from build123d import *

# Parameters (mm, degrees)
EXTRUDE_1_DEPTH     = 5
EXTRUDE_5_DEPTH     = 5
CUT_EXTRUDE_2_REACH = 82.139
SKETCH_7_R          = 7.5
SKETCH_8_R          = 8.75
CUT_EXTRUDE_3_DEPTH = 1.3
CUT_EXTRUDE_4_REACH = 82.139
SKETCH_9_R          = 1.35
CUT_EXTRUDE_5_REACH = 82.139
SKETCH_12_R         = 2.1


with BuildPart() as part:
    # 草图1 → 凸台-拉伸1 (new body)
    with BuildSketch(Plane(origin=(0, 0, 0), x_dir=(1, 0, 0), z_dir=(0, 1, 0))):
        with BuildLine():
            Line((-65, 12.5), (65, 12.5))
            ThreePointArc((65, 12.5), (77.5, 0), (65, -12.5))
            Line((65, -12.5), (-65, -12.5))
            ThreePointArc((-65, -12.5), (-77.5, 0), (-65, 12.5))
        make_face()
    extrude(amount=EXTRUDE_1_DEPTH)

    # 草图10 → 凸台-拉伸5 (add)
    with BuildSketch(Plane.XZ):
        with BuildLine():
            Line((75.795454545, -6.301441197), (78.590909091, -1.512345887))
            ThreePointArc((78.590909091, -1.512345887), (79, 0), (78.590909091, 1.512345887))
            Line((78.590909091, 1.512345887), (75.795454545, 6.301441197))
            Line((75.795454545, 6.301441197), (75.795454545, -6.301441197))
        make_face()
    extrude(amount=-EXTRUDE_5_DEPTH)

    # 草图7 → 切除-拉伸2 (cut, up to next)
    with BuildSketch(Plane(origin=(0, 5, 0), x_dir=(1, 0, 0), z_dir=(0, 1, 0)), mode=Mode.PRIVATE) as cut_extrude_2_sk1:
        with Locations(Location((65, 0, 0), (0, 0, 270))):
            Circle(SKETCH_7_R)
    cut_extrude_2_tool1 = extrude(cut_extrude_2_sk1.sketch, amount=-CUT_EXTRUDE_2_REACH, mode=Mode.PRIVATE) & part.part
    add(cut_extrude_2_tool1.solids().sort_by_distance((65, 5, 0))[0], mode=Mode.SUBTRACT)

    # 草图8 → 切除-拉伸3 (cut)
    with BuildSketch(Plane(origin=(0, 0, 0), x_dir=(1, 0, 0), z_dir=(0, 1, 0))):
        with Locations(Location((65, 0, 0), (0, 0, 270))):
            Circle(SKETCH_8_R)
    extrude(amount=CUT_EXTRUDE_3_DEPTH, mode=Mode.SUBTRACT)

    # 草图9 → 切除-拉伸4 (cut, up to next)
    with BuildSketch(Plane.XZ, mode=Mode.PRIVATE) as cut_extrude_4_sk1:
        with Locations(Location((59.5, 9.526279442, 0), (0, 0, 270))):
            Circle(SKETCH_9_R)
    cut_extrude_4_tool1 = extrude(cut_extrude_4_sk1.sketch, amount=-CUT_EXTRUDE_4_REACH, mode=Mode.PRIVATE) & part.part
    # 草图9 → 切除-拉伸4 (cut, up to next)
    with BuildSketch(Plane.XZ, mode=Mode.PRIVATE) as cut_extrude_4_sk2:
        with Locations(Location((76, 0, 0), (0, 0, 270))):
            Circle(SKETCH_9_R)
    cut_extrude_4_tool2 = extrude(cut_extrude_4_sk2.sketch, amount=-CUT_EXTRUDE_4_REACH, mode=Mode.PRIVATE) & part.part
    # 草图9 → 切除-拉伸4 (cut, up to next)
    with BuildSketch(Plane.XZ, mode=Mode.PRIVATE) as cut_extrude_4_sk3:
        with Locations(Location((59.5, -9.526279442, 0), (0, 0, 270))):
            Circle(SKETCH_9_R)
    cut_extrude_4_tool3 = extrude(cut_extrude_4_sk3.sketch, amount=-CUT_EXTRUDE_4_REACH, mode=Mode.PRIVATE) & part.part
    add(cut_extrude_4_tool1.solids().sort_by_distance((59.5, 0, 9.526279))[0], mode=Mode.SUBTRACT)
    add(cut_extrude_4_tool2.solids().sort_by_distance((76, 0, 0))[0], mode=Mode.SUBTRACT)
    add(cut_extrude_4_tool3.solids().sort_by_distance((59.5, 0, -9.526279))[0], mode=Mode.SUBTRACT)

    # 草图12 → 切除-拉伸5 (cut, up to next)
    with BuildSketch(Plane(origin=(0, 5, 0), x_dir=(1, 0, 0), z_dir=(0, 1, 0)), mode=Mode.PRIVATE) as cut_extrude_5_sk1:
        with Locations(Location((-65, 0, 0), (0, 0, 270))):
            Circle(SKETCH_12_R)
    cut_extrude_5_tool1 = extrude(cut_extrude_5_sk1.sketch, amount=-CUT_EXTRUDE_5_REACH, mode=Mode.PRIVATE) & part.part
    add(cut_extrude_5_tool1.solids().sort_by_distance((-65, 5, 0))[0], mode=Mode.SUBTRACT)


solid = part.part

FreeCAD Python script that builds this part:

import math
import FreeCAD as App
import Part
import Sketcher
from FreeCAD import Vector
Q = App.Units.Quantity

doc = App.newDocument("Part")
body = doc.addObject("PartDesign::Body", "Body")

sketch1 = body.newObject("Sketcher::SketchObject", "Sketch")
sketch1.AttachmentSupport = (doc.getObject("XZ_Plane"), [""])
sketch1.MapMode = "FlatFace"
sketch1.addGeometry([
    Part.LineSegment(Vector(65, -12, 0), Vector(-65, -12, 0)),
    Part.ArcOfCircle(Part.Circle(Vector(-65, 0, 0), Vector(0, 0, 1), 12), math.radians(90), math.radians(270)),
    Part.LineSegment(Vector(-65, 12, 0), Vector(65, 12, 0)),
    Part.ArcOfCircle(Part.Circle(Vector(65, 0, 0), Vector(0, 0, 1), 12), math.radians(-90), math.radians(90)),
], False)
sketch1.addConstraint([
    Sketcher.Constraint("Tangent", 0, 2, 1, 2),
    Sketcher.Constraint("Tangent", 1, 1, 2, 1),
    Sketcher.Constraint("Tangent", 2, 2, 3, 2),
    Sketcher.Constraint("Tangent", 3, 1, 0, 1),
    Sketcher.Constraint("Horizontal", 0),
    Sketcher.Constraint("Horizontal", 2),
    Sketcher.Constraint("Symmetric", 1, 3, 3, 3, -1, 1),
    Sketcher.Constraint("Radius", 1, Q("12.5 mm")),
    Sketcher.Constraint("DistanceX", 0, 2, 0, 1, Q("130 mm")),
])
pad1 = body.newObject("PartDesign::Pad", "Pad")
pad1.Profile = sketch1
pad1.Length = 5
pad1.Reversed = True

sketch2 = body.newObject("Sketcher::SketchObject", "Sketch001")
sketch2.AttachmentSupport = (doc.getObject("XZ_Plane"), [""])
sketch2.MapMode = "FlatFace"
sketch2.addGeometry([
    Part.LineSegment(Vector(75.8, -6.3, 0), Vector(78.6, -1.5, 0)),
    Part.ArcOfCircle(Part.Circle(Vector(76, 0, 0), Vector(0, 0, 1), 3), math.radians(-30), math.radians(30)),
    Part.LineSegment(Vector(78.6, 1.5, 0), Vector(75.8, 6.3, 0)),
    Part.LineSegment(Vector(75.8, 6.3, 0), Vector(75.8, -6.3, 0)),
], False)
sketch2.addConstraint([
    Sketcher.Constraint("Tangent", 0, 2, 1, 1),
    Sketcher.Constraint("Tangent", 1, 2, 2, 1),
    Sketcher.Constraint("Coincident", 2, 2, 3, 1),
    Sketcher.Constraint("Coincident", 3, 2, 0, 1),
    Sketcher.Constraint("Vertical", 3),
    Sketcher.Constraint("Symmetric", 0, 2, 1, 2, -1),
    Sketcher.Constraint("Radius", 1, Q("3 mm")),
    Sketcher.Constraint("DistanceX", -1, 1, 1, 3, Q("76 mm")),
    Sketcher.Constraint("Distance", 0, Q("5.545268 mm")),
    Sketcher.Constraint("DistanceY", 3, 2, 3, 1, Q("12.602882 mm")),
])
pad2 = body.newObject("PartDesign::Pad", "Pad001")
pad2.Profile = sketch2
pad2.Length = 5
pad2.Reversed = True

sketch3 = body.newObject("Sketcher::SketchObject", "Sketch002")
sketch3.AttachmentSupport = (doc.getObject("XZ_Plane"), [""])
sketch3.MapMode = "FlatFace"
sketch3.AttachmentOffset = App.Placement(Vector(0, 0, -5), App.Rotation())
sketch3.addGeometry(Part.Circle(Vector(65, 0, 0), Vector(0, 0, 1), 8), False)
sketch3.addConstraint([
    Sketcher.Constraint("PointOnObject", 0, 3, -1),
    Sketcher.Constraint("Diameter", 0, Q("15 mm")),
    Sketcher.Constraint("DistanceX", -1, 1, 0, 3, Q("65 mm")),
])
pocket1 = body.newObject("PartDesign::Pocket", "Pocket")
pocket1.Profile = sketch3
pocket1.Type = "UpToFirst"
pocket1.Reversed = True

sketch4 = body.newObject("Sketcher::SketchObject", "Sketch003")
sketch4.AttachmentSupport = (doc.getObject("XZ_Plane"), [""])
sketch4.MapMode = "FlatFace"
sketch4.addGeometry(Part.Circle(Vector(65, 0, 0), Vector(0, 0, 1), 9), False)
sketch4.addConstraint([
    Sketcher.Constraint("PointOnObject", 0, 3, -1),
    Sketcher.Constraint("Diameter", 0, Q("17.5 mm")),
    Sketcher.Constraint("DistanceX", -1, 1, 0, 3, Q("65 mm")),
])
pocket2 = body.newObject("PartDesign::Pocket", "Pocket001")
pocket2.Profile = sketch4
pocket2.Length = 1.3

sketch5 = body.newObject("Sketcher::SketchObject", "Sketch004")
sketch5.AttachmentSupport = (doc.getObject("XZ_Plane"), [""])
sketch5.MapMode = "FlatFace"
sketch5.addGeometry(Part.Circle(Vector(59.5, 9.5, 0), Vector(0, 0, 1), 1.4), False)
sketch5.addConstraint([
    Sketcher.Constraint("Diameter", 0, Q("2.7 mm")),
    Sketcher.Constraint("DistanceX", -1, 1, 0, 3, Q("59.5 mm")),
    Sketcher.Constraint("DistanceY", -1, 1, 0, 3, Q("9.526279 mm")),
])
pocket3 = body.newObject("PartDesign::Pocket", "Pocket002")
pocket3.Profile = sketch5
pocket3.Type = "UpToFirst"

sketch6 = body.newObject("Sketcher::SketchObject", "Sketch005")
sketch6.AttachmentSupport = (doc.getObject("XZ_Plane"), [""])
sketch6.MapMode = "FlatFace"
sketch6.addGeometry(Part.Circle(Vector(76, 0, 0), Vector(0, 0, 1), 1.4), False)
sketch6.addConstraint([
    Sketcher.Constraint("PointOnObject", 0, 3, -1),
    Sketcher.Constraint("Diameter", 0, Q("2.7 mm")),
    Sketcher.Constraint("DistanceX", -1, 1, 0, 3, Q("76 mm")),
])
pocket4 = body.newObject("PartDesign::Pocket", "Pocket003")
pocket4.Profile = sketch6
pocket4.Type = "UpToFirst"

sketch7 = body.newObject("Sketcher::SketchObject", "Sketch006")
sketch7.AttachmentSupport = (doc.getObject("XZ_Plane"), [""])
sketch7.MapMode = "FlatFace"
sketch7.addGeometry(Part.Circle(Vector(59.5, -9.5, 0), Vector(0, 0, 1), 1.4), False)
sketch7.addConstraint([
    Sketcher.Constraint("Diameter", 0, Q("2.7 mm")),
    Sketcher.Constraint("DistanceX", -1, 1, 0, 3, Q("59.5 mm")),
    Sketcher.Constraint("DistanceY", 0, 3, -1, 1, Q("9.526279 mm")),
])
pocket5 = body.newObject("PartDesign::Pocket", "Pocket004")
pocket5.Profile = sketch7
pocket5.Type = "UpToFirst"

sketch8 = body.newObject("Sketcher::SketchObject", "Sketch007")
sketch8.AttachmentSupport = (doc.getObject("XZ_Plane"), [""])
sketch8.MapMode = "FlatFace"
sketch8.AttachmentOffset = App.Placement(Vector(0, 0, -5), App.Rotation())
sketch8.addGeometry(Part.Circle(Vector(-65, 0, 0), Vector(0, 0, 1), 2.1), False)
sketch8.addConstraint([
    Sketcher.Constraint("PointOnObject", 0, 3, -1),
    Sketcher.Constraint("Diameter", 0, Q("4.2 mm")),
    Sketcher.Constraint("DistanceX", 0, 3, -1, 1, Q("65 mm")),
])
pocket6 = body.newObject("PartDesign::Pocket", "Pocket005")
pocket6.Profile = sketch8
pocket6.Type = "UpToFirst"
pocket6.Reversed = True

doc.recompute()
